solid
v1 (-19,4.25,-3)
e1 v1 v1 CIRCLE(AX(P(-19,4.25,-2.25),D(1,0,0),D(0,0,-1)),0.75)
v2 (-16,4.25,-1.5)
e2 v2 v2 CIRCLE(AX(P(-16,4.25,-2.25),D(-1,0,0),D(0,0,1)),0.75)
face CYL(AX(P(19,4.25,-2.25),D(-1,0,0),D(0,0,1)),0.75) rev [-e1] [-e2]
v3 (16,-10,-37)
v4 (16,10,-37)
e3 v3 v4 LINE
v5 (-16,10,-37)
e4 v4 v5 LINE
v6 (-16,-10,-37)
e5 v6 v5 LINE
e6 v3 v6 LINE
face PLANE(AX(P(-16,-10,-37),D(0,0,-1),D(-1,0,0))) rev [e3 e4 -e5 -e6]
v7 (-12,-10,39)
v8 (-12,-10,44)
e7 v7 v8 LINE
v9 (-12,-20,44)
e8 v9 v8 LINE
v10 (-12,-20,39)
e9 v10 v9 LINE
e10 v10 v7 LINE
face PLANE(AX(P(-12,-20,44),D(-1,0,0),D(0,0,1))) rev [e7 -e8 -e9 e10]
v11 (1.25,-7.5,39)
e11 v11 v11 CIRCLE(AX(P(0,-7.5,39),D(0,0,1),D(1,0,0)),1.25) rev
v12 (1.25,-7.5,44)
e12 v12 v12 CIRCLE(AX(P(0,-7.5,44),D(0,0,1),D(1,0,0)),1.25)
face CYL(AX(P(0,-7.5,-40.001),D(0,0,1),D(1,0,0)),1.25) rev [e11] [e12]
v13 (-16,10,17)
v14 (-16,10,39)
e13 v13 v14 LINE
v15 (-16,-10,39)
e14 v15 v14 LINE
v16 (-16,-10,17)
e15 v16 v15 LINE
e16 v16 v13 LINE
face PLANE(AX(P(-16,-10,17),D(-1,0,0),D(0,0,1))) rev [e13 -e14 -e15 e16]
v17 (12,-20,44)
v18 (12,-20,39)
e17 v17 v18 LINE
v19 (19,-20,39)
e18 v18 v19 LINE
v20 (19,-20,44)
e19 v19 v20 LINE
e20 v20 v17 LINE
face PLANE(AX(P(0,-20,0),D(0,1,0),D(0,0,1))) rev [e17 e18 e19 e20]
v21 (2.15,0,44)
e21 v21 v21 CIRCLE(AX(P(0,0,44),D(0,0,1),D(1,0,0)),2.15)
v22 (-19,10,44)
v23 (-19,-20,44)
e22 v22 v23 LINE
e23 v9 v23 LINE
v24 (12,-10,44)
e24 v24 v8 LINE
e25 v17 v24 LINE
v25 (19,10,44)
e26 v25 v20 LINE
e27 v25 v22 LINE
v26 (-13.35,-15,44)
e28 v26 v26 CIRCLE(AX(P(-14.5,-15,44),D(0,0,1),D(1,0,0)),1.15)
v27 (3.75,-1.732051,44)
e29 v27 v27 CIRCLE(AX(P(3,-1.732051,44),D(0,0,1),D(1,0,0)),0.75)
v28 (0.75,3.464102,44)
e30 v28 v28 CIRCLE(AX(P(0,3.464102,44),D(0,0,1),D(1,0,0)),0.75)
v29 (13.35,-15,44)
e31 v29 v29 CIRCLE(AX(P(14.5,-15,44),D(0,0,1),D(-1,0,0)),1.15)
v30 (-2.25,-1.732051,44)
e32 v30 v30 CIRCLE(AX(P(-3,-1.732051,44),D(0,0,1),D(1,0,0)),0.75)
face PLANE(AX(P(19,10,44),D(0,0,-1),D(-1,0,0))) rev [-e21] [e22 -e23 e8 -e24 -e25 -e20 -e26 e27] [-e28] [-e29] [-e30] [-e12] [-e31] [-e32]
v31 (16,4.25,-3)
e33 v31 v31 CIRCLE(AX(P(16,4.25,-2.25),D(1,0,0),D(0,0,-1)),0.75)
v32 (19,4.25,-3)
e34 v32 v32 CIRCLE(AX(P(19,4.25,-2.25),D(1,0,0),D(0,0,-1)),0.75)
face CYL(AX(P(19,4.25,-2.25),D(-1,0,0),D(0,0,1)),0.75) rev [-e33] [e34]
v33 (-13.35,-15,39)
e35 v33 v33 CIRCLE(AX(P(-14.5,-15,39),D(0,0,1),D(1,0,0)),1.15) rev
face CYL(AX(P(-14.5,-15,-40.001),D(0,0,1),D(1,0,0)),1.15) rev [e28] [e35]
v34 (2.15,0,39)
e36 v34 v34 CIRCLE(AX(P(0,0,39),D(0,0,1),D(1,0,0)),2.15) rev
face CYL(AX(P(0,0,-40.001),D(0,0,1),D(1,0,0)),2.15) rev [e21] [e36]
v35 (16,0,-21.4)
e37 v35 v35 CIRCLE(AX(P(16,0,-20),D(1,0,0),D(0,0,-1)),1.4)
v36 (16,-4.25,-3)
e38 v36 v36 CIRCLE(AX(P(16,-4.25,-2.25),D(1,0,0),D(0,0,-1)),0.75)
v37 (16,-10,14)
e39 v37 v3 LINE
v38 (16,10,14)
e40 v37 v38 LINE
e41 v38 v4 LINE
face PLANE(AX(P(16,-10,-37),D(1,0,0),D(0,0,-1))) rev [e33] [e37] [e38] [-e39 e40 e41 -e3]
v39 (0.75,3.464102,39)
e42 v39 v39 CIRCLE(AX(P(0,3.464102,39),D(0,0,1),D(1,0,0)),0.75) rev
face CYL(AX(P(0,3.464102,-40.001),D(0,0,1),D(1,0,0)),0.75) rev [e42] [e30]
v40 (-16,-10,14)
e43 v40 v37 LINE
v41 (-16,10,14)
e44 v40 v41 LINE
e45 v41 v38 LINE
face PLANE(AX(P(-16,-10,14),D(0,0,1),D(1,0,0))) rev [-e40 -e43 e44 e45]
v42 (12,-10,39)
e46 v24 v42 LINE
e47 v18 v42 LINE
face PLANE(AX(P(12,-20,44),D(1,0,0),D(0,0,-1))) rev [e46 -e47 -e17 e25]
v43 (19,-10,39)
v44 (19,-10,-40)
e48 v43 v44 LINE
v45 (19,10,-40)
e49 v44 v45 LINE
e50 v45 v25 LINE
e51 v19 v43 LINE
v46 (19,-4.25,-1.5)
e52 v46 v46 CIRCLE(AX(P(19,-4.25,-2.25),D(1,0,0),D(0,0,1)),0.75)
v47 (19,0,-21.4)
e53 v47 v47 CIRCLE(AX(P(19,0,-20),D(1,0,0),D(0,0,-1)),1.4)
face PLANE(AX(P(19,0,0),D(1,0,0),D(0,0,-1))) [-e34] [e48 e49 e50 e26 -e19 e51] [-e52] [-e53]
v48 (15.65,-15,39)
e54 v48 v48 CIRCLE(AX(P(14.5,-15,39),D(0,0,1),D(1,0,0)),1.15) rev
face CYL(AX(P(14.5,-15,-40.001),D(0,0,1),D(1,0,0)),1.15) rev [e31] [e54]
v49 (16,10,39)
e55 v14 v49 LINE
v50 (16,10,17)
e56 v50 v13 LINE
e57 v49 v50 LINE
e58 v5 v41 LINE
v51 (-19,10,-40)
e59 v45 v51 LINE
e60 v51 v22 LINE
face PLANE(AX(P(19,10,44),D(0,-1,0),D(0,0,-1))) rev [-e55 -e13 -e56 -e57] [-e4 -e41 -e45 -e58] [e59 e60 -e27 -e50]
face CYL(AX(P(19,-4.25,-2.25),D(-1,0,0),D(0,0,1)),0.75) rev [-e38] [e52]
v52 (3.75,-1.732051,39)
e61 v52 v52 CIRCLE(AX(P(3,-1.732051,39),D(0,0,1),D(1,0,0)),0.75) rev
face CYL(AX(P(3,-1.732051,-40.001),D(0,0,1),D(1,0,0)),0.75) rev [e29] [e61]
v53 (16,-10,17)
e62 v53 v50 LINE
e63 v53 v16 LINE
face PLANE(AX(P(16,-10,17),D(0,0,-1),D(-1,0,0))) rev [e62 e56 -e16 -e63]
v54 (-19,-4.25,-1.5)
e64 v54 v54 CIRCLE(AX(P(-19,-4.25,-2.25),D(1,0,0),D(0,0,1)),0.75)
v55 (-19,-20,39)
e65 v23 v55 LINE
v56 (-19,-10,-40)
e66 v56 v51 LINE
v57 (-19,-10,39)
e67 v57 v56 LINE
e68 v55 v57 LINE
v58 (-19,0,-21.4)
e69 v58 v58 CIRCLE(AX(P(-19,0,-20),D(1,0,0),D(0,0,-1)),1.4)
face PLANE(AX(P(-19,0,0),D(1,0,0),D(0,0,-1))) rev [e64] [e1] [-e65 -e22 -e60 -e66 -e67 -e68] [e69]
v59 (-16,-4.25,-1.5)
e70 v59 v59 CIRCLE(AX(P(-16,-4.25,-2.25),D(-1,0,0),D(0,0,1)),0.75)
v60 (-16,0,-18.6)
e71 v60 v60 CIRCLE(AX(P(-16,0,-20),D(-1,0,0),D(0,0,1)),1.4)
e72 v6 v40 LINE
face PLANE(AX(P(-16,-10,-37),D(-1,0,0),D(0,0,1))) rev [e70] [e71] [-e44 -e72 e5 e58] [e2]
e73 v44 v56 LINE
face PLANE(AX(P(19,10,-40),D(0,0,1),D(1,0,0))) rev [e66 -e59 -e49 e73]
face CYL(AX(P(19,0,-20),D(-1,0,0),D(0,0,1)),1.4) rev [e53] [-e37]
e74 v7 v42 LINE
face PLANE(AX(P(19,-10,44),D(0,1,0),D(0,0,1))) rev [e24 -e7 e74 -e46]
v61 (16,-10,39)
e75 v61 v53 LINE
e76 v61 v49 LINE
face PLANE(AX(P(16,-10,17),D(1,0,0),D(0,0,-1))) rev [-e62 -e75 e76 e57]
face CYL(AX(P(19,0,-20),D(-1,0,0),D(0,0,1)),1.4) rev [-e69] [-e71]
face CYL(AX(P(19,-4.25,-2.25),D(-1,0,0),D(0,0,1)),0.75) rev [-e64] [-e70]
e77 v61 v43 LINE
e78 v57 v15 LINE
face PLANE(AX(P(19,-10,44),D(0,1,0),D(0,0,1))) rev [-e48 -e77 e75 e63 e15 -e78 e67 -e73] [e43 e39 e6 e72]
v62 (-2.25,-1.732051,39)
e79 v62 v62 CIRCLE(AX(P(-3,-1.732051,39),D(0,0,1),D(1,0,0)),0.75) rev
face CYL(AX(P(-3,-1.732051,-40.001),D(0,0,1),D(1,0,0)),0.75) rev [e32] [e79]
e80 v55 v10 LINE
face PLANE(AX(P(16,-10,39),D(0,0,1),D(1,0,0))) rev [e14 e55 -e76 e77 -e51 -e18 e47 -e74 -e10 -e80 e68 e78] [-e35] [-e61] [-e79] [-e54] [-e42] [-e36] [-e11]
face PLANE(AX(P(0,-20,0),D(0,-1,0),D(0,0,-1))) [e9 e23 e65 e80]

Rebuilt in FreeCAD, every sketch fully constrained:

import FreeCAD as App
import Part
import Sketcher
from FreeCAD import Vector
Q = App.Units.Quantity


def add_polygon(sketch, points):
    """Adds a closed chain of lines whose ends are joined by coincident constraints."""
    first, n = sketch.GeometryCount, len(points)
    for a, b in zip(points, points[1:] + points[:1]):
        sketch.addGeometry(Part.LineSegment(App.Vector(*a, 0), App.Vector(*b, 0)), False)
    for i in range(n):
        sketch.addConstraint(Sketcher.Constraint("Coincident", first + i, 2, first + (i + 1) % n, 1))

doc = App.newDocument("Part")
body = doc.addObject("PartDesign::Body", "Body")

# Sketch on YZ plane
sketch1 = body.newObject("Sketcher::SketchObject", "Sketch")
sketch1.AttachmentSupport = (doc.getObject("YZ_Plane"), [""])
sketch1.MapMode = "FlatFace"
add_polygon(sketch1, [(10, 44), (-10, 44), (-10, -40), (10, -40)])  # lines 0-3
sketch1.addGeometry(Part.Circle(Vector(-4.25, -2.25, 0), Vector(0, 0, 1), 0.75), False)  # 4
sketch1.addGeometry(Part.Circle(Vector(4.25, -2.25, 0), Vector(0, 0, 1), 0.75), False)  # 5
sketch1.addGeometry(Part.Circle(Vector(0, -20, 0), Vector(0, 0, 1), 1.4), False)  # 6
sketch1.addConstraint([
    Sketcher.Constraint("Horizontal", 0),
    Sketcher.Constraint("Vertical", 1),
    Sketcher.Constraint("Horizontal", 2),
    Sketcher.Constraint("Vertical", 3),
    Sketcher.Constraint("Equal", 4, 5),
    Sketcher.Constraint("Symmetric", 4, 3, 5, 3, -2),
    Sketcher.Constraint("PointOnObject", 6, 3, -2),
    Sketcher.Constraint("Diameter", 4, Q("1.5 mm")),
    Sketcher.Constraint("Diameter", 6, Q("2.8 mm")),
    Sketcher.Constraint("DistanceX", 0, 2, 0, 1, Q("20 mm")),
    Sketcher.Constraint("DistanceY", 1, 2, 1, 1, Q("84 mm")),
    Sketcher.Constraint("DistanceY", 6, 3, -1, 1, Q("20 mm")),
    Sketcher.Constraint("DistanceX", 0, 2, -1, 1, Q("10 mm")),
    Sketcher.Constraint("DistanceY", -1, 1, 0, 2, Q("44 mm")),
    Sketcher.Constraint("DistanceX", 4, 3, 5, 3, Q("8.5 mm")),
    Sketcher.Constraint("DistanceY", 4, 3, -1, 1, Q("2.25 mm")),
])
pad1 = body.newObject("PartDesign::Pad", "Pad")
pad1.Profile = sketch1
pad1.Length = 38
pad1.Midplane = True

# Sketch on XZ plane
sketch2 = body.newObject("Sketcher::SketchObject", "Sketch001")
sketch2.AttachmentSupport = (doc.getObject("XZ_Plane"), [""])
sketch2.MapMode = "FlatFace"
sketch2.AttachmentOffset = App.Placement(Vector(0, 0, -10), App.Rotation())
add_polygon(sketch2, [(-16, -37), (-16, 14), (16, 14), (16, -37)])  # lines 0-3
add_polygon(sketch2, [(-16, 17), (-16, 39), (16, 39), (16, 17)])  # lines 4-7
sketch2.addConstraint([
    Sketcher.Constraint("Vertical", 0),
    Sketcher.Constraint("Horizontal", 1),
    Sketcher.Constraint("Vertical", 2),
    Sketcher.Constraint("Horizontal", 3),
    Sketcher.Constraint("Vertical", 4),
    Sketcher.Constraint("Horizontal", 5),
    Sketcher.Constraint("Vertical", 6),
    Sketcher.Constraint("Horizontal", 7),
    Sketcher.Constraint("Vertical", 3, 2, 4, 2),
    Sketcher.Constraint("Vertical", 2, 2, 5, 2),
    Sketcher.Constraint("DistanceX", 1, 1, 1, 2, Q("32 mm")),
    Sketcher.Constraint("DistanceY", 0, 1, 0, 2, Q("51 mm")),
    Sketcher.Constraint("DistanceY", 4, 1, 4, 2, Q("22 mm")),
    Sketcher.Constraint("DistanceX", 0, 2, -1, 1, Q("16 mm")),
    Sketcher.Constraint("DistanceY", -1, 1, 0, 2, Q("14 mm")),
    Sketcher.Constraint("DistanceY", -1, 1, 4, 2, Q("39 mm")),
])
pocket1 = body.newObject("PartDesign::Pocket", "Pocket")
pocket1.Profile = sketch2
pocket1.Type = "ThroughAll"
pocket1.Reversed = True

# Sketch on XZ plane
sketch3 = body.newObject("Sketcher::SketchObject", "Sketch002")
sketch3.AttachmentSupport = (doc.getObject("XZ_Plane"), [""])
sketch3.MapMode = "FlatFace"
sketch3.AttachmentOffset = App.Placement(Vector(0, 0, 10), App.Rotation())
add_polygon(sketch3, [(-19, 44), (-19, 39), (-12, 39), (-12, 44)])  # lines 0-3
add_polygon(sketch3, [(12, 44), (12, 39), (19, 39), (19, 44)])  # lines 4-7
sketch3.addConstraint([
    Sketcher.Constraint("Vertical", 0),
    Sketcher.Constraint("Horizontal", 1),
    Sketcher.Constraint("Vertical", 2),
    Sketcher.Constraint("Horizontal", 3),
    Sketcher.Constraint("Vertical", 4),
    Sketcher.Constraint("Horizontal", 5),
    Sketcher.Constraint("Vertical", 6),
    Sketcher.Constraint("Horizontal", 7),
    Sketcher.Constraint("Symmetric", 1, 2, 4, 2, -2),
    Sketcher.Constraint("Symmetric", 3, 2, 6, 2, -2),
    Sketcher.Constraint("DistanceX", 1, 1, 1, 2, Q("7 mm")),
    Sketcher.Constraint("DistanceY", 0, 2, 0, 1, Q("5 mm")),
    Sketcher.Constraint("DistanceX", 0, 2, -1, 1, Q("19 mm")),
    Sketcher.Constraint("DistanceY", -1, 1, 0, 2, Q("39 mm")),
])
pad2 = body.newObject("PartDesign::Pad", "Pad001")
pad2.Profile = sketch3
pad2.Length = 10

# Sketch on XY plane
sketch4 = body.newObject("Sketcher::SketchObject", "Sketch003")
sketch4.AttachmentSupport = (doc.getObject("XY_Plane"), [""])
sketch4.MapMode = "FlatFace"
sketch4.AttachmentOffset = App.Placement(Vector(0, 0, 44), App.Rotation())
sketch4.addGeometry(Part.Circle(Vector(0, 3.464102, 0), Vector(0, 0, 1), 0.75), False)
sketch4.addConstraint([
    Sketcher.Constraint("PointOnObject", 0, 3, -2),
    Sketcher.Constraint("Diameter", 0, Q("1.5 mm")),
    Sketcher.Constraint("DistanceY", -1, 1, 0, 3, Q("3.464102 mm")),
])
pocket2 = body.newObject("PartDesign::Pocket", "Pocket001")
pocket2.Profile = sketch4
pocket2.Type = "UpToFirst"

# Sketch on XY plane
sketch5 = body.newObject("Sketcher::SketchObject", "Sketch004")
sketch5.AttachmentSupport = (doc.getObject("XY_Plane"), [""])
sketch5.MapMode = "FlatFace"
sketch5.AttachmentOffset = App.Placement(Vector(0, 0, 44), App.Rotation())
sketch5.addGeometry(Part.Circle(Vector(3, -1.732051, 0), Vector(0, 0, 1), 0.75), False)
sketch5.addConstraint([
    Sketcher.Constraint("Diameter", 0, Q("1.5 mm")),
    Sketcher.Constraint("DistanceX", -1, 1, 0, 3, Q("3 mm")),
    Sketcher.Constraint("DistanceY", 0, 3, -1, 1, Q("1.732051 mm")),
])
pocket3 = body.newObject("PartDesign::Pocket", "Pocket002")
pocket3.Profile = sketch5
pocket3.Type = "UpToFirst"

# Sketch on XY plane
sketch6 = body.newObject("Sketcher::SketchObject", "Sketch005")
sketch6.AttachmentSupport = (doc.getObject("XY_Plane"), [""])
sketch6.MapMode = "FlatFace"
sketch6.AttachmentOffset = App.Placement(Vector(0, 0, 44), App.Rotation())
sketch6.addGeometry(Part.Circle(Vector(-3, -1.732051, 0), Vector(0, 0, 1), 0.75), False)
sketch6.addConstraint([
    Sketcher.Constraint("Diameter", 0, Q("1.5 mm")),
    Sketcher.Constraint("DistanceX", 0, 3, -1, 1, Q("3 mm")),
    Sketcher.Constraint("DistanceY", 0, 3, -1, 1, Q("1.732051 mm")),
])
pocket4 = body.newObject("PartDesign::Pocket", "Pocket003")
pocket4.Profile = sketch6
pocket4.Type = "UpToFirst"

# Sketch on XY plane
sketch7 = body.newObject("Sketcher::SketchObject", "Sketch006")
sketch7.AttachmentSupport = (doc.getObject("XY_Plane"), [""])
sketch7.MapMode = "FlatFace"
sketch7.AttachmentOffset = App.Placement(Vector(0, 0, 44), App.Rotation())
sketch7.addGeometry(Part.Circle(Vector(0, -7.5, 0), Vector(0, 0, 1), 1.25), False)
sketch7.addConstraint([
    Sketcher.Constraint("PointOnObject", 0, 3, -2),
    Sketcher.Constraint("Diameter", 0, Q("2.5 mm")),
    Sketcher.Constraint("DistanceY", 0, 3, -1, 1, Q("7.5 mm")),
])
pocket5 = body.newObject("PartDesign::Pocket", "Pocket004")
pocket5.Profile = sketch7
pocket5.Type = "UpToFirst"

# Sketch on XY plane
sketch8 = body.newObject("Sketcher::SketchObject", "Sketch007")
sketch8.AttachmentSupport = (doc.getObject("XY_Plane"), [""])
sketch8.MapMode = "FlatFace"
sketch8.AttachmentOffset = App.Placement(Vector(0, 0, 44), App.Rotation())
sketch8.addGeometry(Part.Circle(Vector(0, 0, 0), Vector(0, 0, 1), 2.15), False)
sketch8.addConstraint([
    Sketcher.Constraint("Coincident", 0, 3, -1, 1),
    Sketcher.Constraint("Diameter", 0, Q("4.3 mm")),
])
pocket6 = body.newObject("PartDesign::Pocket", "Pocket005")
pocket6.Profile = sketch8
pocket6.Type = "UpToFirst"

# Sketch on XY plane
sketch9 = body.newObject("Sketcher::SketchObject", "Sketch008")
sketch9.AttachmentSupport = (doc.getObject("XY_Plane"), [""])
sketch9.MapMode = "FlatFace"
sketch9.AttachmentOffset = App.Placement(Vector(0, 0, 44), App.Rotation())
sketch9.addGeometry(Part.Circle(Vector(-14.5, -15, 0), Vector(0, 0, 1), 1.15), False)
sketch9.addConstraint([
    Sketcher.Constraint("Diameter", 0, Q("2.3 mm")),
    Sketcher.Constraint("DistanceY", 0, 3, -1, 1, Q("15 mm")),
    Sketcher.Constraint("DistanceX", 0, 3, -1, 1, Q("14.5 mm")),
])
pocket7 = body.newObject("PartDesign::Pocket", "Pocket006")
pocket7.Profile = sketch9
pocket7.Type = "UpToFirst"

# Sketch on XY plane
sketch10 = body.newObject("Sketcher::SketchObject", "Sketch009")
sketch10.AttachmentSupport = (doc.getObject("XY_Plane"), [""])
sketch10.MapMode = "FlatFace"
sketch10.AttachmentOffset = App.Placement(Vector(0, 0, 44), App.Rotation())
sketch10.addGeometry(Part.Circle(Vector(14.5, -15, 0), Vector(0, 0, 1), 1.15), False)
sketch10.addConstraint([
    Sketcher.Constraint("Diameter", 0, Q("2.3 mm")),
    Sketcher.Constraint("DistanceY", 0, 3, -1, 1, Q("15 mm")),
    Sketcher.Constraint("DistanceX", -1, 1, 0, 3, Q("14.5 mm")),
])
pocket8 = body.newObject("PartDesign::Pocket", "Pocket007")
pocket8.Profile = sketch10
pocket8.Type = "UpToFirst"

doc.recompute()
